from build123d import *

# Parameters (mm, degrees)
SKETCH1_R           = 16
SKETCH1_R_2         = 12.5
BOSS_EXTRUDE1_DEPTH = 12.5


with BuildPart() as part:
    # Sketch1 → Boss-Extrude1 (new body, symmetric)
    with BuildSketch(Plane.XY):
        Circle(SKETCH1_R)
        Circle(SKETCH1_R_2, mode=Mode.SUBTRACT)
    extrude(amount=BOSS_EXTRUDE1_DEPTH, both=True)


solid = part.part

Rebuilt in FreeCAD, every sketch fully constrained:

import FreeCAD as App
import Part
import Sketcher
Q = App.Units.Quantity

doc = App.newDocument("Part")
body = doc.addObject("PartDesign::Body", "Body")

sketch1 = body.newObject("Sketcher::SketchObject", "Sketch")
sketch1.AttachmentSupport = (doc.getObject("XY_Plane"), [""])
sketch1.MapMode = "FlatFace"
sketch1.addGeometry(Part.Circle(App.Vector(0, 0, 0), App.Vector(0, 0, 1), 16), False)
sketch1.addGeometry(Part.Circle(App.Vector(0, 0, 0), App.Vector(0, 0, 1), 12), False)
sketch1.addConstraint(Sketcher.Constraint("Coincident", 0, 3, -1, 1))
sketch1.addConstraint(Sketcher.Constraint("Coincident", 1, 3, -1, 1))
sketch1.addConstraint(Sketcher.Constraint("Diameter", 0, Q("32 mm")))
sketch1.addConstraint(Sketcher.Constraint("Diameter", 1, Q("25 mm")))
pad1 = body.newObject("PartDesign::Pad", "Pad")
pad1.Profile = sketch1
pad1.Length = 25
pad1.Midplane = True

doc.recompute()
